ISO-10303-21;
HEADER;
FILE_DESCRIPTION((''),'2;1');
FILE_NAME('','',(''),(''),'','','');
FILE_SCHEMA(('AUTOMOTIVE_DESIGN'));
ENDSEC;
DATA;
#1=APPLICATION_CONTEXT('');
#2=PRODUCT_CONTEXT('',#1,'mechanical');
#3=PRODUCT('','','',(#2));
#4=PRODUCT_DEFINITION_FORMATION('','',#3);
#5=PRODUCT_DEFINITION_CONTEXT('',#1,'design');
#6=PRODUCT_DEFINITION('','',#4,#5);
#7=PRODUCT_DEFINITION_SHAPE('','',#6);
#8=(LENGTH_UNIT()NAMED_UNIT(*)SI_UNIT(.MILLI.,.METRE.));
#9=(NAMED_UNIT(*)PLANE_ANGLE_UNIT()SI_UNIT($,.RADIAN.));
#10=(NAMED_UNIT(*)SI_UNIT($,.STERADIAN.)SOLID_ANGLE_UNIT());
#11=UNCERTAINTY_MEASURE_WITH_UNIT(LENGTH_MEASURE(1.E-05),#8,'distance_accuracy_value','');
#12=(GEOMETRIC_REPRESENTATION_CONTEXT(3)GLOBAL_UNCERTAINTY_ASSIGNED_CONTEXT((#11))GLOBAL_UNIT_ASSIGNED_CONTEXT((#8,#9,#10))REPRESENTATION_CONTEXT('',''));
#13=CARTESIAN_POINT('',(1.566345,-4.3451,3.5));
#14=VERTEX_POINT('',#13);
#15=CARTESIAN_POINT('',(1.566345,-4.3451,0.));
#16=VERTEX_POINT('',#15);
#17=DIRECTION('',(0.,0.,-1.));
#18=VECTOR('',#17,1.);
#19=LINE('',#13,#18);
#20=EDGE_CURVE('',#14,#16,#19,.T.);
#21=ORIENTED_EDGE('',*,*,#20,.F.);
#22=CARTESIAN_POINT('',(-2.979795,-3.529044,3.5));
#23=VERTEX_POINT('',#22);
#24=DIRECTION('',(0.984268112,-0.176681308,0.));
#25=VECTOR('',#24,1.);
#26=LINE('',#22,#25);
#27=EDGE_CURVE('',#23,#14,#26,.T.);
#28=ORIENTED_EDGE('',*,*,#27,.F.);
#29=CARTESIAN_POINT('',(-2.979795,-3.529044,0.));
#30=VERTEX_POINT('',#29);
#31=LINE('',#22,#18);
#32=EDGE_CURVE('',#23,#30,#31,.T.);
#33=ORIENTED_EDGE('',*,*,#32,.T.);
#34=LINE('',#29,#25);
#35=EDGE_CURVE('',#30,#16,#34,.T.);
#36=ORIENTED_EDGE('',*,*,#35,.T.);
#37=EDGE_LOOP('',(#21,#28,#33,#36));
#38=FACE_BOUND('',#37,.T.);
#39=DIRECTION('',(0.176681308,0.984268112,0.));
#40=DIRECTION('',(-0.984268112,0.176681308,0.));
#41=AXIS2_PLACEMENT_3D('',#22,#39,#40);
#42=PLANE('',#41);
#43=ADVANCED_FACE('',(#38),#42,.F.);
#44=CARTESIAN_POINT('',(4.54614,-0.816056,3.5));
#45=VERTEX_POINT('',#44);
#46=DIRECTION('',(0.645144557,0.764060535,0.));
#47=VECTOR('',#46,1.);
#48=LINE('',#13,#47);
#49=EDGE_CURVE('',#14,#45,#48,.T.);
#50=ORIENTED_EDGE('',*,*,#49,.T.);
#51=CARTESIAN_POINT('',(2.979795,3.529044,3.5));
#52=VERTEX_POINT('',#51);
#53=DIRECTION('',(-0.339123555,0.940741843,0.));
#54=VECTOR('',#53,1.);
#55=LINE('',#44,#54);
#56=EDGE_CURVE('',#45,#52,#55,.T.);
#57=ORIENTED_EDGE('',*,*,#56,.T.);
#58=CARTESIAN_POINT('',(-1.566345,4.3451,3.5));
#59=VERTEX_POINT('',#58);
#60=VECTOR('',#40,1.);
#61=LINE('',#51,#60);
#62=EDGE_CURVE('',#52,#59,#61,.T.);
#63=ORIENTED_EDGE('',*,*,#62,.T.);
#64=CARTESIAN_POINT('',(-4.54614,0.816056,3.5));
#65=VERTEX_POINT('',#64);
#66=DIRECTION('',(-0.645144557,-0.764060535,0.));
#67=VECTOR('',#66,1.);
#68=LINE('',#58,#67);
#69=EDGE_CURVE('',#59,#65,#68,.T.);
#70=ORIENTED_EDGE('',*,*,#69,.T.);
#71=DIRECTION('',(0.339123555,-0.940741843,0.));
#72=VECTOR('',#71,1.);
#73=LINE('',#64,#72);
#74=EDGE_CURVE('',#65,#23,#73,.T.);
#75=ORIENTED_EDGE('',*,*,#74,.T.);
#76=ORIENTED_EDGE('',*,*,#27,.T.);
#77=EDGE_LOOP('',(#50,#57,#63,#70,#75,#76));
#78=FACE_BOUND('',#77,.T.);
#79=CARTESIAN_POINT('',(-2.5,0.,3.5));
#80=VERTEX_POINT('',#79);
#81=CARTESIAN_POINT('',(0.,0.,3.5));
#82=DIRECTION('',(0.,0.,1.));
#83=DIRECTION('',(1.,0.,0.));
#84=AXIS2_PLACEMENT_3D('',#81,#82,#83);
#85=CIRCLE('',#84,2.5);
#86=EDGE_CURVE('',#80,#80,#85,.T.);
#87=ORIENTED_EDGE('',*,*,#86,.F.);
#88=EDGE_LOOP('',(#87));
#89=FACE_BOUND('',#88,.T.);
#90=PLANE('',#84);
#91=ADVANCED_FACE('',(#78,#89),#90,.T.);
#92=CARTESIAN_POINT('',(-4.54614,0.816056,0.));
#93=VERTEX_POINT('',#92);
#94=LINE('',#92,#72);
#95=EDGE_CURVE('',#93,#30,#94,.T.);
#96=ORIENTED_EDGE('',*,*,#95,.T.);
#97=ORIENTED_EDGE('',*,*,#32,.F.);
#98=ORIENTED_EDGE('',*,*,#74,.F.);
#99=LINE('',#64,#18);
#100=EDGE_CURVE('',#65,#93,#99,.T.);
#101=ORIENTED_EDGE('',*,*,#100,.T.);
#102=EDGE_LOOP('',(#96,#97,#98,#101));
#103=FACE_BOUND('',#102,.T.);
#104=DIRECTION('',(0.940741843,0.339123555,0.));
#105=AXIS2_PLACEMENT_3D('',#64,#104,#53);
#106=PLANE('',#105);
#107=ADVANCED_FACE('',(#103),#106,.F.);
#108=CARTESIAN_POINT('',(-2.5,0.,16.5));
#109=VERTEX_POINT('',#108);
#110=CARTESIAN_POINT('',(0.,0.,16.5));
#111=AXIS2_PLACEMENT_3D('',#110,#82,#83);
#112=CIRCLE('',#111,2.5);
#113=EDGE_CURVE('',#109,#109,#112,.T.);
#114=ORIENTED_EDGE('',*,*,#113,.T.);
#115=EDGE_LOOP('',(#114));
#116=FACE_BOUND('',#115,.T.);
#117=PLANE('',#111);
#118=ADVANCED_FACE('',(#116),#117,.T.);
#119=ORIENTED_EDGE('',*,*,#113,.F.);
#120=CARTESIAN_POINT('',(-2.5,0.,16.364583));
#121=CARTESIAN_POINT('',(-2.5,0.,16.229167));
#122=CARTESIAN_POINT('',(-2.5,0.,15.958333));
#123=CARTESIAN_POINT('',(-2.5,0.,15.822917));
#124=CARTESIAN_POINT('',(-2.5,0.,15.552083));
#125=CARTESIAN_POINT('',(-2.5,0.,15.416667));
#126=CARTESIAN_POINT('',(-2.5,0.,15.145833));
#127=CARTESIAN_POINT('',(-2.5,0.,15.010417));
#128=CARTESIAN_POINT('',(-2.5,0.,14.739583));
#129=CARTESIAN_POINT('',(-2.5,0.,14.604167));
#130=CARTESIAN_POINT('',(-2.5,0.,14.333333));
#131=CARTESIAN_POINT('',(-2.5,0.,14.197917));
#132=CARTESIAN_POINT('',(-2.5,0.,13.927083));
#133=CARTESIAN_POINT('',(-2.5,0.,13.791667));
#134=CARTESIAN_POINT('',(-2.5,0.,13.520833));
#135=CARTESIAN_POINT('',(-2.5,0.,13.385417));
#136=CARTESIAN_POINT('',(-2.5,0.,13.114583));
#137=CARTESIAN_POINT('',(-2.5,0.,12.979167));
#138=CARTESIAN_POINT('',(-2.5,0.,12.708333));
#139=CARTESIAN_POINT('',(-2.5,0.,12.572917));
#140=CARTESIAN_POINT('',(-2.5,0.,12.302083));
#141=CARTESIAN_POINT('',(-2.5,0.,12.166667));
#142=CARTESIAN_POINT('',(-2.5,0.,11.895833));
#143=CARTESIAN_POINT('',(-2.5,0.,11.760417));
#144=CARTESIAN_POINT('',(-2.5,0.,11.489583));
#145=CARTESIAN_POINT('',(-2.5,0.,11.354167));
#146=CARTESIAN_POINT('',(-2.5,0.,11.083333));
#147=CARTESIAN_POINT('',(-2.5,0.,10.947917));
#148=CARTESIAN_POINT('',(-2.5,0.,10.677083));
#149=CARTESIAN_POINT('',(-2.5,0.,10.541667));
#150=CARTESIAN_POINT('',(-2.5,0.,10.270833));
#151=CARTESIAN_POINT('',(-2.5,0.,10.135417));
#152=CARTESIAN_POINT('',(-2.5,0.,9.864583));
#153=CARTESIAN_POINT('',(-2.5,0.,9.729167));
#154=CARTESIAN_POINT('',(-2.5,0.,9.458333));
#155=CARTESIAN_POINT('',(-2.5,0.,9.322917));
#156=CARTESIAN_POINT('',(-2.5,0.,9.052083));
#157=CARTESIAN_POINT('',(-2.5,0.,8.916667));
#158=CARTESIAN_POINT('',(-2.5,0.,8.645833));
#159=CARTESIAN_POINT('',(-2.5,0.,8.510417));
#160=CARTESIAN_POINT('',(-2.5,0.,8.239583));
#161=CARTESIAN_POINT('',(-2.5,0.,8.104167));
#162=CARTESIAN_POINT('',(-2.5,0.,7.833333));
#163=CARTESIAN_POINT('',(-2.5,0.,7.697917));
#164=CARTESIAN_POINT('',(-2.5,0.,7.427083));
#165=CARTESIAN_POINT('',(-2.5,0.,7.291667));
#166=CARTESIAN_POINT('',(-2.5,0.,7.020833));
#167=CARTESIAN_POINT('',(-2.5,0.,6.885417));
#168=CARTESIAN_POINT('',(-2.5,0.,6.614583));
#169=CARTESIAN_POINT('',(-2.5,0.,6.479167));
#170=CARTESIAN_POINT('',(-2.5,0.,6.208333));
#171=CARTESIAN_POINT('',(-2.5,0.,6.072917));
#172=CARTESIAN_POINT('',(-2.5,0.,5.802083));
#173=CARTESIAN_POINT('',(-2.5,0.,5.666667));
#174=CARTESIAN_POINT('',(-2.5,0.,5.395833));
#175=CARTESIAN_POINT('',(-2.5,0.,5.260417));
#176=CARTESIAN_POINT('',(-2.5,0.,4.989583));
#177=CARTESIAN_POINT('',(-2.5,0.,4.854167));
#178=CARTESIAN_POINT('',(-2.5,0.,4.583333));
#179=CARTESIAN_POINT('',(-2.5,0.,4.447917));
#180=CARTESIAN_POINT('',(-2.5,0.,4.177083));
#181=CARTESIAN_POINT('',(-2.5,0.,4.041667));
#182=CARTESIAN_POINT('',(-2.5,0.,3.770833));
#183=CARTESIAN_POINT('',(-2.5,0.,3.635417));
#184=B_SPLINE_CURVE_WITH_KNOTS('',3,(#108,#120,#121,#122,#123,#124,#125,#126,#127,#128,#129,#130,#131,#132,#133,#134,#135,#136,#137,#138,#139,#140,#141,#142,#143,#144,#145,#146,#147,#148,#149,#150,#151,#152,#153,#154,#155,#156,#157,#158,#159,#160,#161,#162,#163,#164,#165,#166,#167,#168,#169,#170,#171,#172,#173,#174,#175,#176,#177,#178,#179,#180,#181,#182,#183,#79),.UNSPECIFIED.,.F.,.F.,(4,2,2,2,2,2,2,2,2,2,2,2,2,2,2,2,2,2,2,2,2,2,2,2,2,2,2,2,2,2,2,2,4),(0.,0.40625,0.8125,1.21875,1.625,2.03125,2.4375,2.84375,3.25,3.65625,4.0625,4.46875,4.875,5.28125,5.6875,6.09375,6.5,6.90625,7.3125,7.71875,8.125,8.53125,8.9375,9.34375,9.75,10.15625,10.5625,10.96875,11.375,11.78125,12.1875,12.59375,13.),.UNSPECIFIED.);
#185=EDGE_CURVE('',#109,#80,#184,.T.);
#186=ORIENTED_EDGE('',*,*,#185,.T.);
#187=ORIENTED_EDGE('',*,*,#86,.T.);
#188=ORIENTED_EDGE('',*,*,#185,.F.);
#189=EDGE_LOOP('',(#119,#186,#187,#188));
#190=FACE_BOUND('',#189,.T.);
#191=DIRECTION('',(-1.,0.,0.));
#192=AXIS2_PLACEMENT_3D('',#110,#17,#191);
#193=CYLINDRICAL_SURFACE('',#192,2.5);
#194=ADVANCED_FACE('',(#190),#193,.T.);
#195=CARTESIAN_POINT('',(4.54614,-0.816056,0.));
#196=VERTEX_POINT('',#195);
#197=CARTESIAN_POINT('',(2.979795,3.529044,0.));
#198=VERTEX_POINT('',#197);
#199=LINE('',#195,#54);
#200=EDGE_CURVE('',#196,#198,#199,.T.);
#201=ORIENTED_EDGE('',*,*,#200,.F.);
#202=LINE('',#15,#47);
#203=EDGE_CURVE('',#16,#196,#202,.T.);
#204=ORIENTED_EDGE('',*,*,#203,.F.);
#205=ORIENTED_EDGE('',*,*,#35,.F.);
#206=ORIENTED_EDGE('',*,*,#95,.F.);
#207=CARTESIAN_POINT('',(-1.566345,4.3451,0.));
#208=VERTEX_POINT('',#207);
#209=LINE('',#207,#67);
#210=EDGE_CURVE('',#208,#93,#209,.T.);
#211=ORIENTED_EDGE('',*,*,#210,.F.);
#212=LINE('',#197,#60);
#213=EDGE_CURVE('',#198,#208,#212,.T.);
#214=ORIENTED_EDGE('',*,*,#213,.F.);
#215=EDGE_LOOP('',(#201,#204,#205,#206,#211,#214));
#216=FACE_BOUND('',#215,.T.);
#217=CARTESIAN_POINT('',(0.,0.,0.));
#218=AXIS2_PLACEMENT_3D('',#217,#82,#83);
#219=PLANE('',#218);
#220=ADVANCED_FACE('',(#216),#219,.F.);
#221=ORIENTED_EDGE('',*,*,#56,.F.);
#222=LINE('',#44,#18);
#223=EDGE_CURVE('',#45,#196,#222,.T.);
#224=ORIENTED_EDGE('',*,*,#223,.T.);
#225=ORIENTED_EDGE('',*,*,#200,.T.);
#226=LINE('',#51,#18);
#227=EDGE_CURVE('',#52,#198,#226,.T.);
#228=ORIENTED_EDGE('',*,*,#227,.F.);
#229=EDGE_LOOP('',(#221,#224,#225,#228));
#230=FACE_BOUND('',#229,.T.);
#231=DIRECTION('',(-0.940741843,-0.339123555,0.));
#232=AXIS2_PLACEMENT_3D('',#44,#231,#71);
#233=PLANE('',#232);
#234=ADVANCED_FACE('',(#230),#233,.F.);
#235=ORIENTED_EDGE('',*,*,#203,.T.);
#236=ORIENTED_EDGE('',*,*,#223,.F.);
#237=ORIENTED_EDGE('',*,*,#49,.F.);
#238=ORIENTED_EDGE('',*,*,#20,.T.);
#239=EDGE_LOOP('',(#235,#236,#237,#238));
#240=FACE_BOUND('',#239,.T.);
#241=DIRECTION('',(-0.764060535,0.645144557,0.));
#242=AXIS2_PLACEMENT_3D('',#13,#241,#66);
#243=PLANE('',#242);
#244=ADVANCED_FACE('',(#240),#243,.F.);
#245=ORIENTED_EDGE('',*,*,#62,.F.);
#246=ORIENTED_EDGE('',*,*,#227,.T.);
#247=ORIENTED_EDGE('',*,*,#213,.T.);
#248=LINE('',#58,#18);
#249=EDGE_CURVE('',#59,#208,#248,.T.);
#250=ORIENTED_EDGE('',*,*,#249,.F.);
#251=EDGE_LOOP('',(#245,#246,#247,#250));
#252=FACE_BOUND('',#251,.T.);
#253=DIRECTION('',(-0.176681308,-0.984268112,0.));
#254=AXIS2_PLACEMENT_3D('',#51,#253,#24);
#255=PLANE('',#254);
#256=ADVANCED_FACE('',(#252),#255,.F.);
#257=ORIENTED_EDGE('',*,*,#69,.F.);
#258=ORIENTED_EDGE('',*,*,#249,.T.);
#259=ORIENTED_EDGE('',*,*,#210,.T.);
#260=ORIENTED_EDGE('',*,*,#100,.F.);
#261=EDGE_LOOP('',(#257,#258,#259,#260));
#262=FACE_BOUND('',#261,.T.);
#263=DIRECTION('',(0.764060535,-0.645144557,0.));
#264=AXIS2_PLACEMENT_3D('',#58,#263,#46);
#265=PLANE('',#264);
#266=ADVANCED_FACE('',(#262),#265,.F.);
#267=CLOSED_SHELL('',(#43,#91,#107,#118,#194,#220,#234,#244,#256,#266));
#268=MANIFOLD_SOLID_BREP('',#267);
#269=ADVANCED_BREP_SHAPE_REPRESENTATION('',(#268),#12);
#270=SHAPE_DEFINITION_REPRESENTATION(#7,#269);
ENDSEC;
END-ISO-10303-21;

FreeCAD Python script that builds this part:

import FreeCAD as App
import Part
import Sketcher

V = App.Vector
Q = App.Units.Quantity


def add_polygon(sketch, points):
    """Adds a closed chain of lines whose ends are joined by coincident constraints."""
    first, n = sketch.GeometryCount, len(points)
    for a, b in zip(points, points[1:] + points[:1]):
        sketch.addGeometry(Part.LineSegment(App.Vector(*a, 0), App.Vector(*b, 0)), False)
    for i in range(n):
        sketch.addConstraint(Sketcher.Constraint("Coincident", first + i, 2, first + (i + 1) % n, 1))

doc = App.newDocument("Part")
params = doc.addObject("Spreadsheet::Sheet", "Params")
for row, (alias, value) in enumerate([
    ("pad1_length", "3.5 mm"),
    ("sketch2_diameter", "5 mm"),
    ("pad2_length", "13 mm"),
], start=1):
    params.set(f"A{row}", alias)
    params.set(f"B{row}", "=" + value)
    params.setAlias(f"B{row}", alias)

body = doc.addObject("PartDesign::Body", "Body")

# Sketch on XY plane
sketch1 = body.newObject("Sketcher::SketchObject", "Sketch")
sketch1.AttachmentSupport = (doc.getObject("XY_Plane"), [""])
sketch1.MapMode = "FlatFace"
add_polygon(sketch1, [(-3, -3.5), (1.6, -4.3), (4.5, -0.8), (3, 3.5), (-1.6, 4.3), (-4.5, 0.8)])  # lines 0-5
sketch1.addConstraint(Sketcher.Constraint("Symmetric", 0, 2, 3, 2, -1, 1))
sketch1.addConstraint(Sketcher.Constraint("Symmetric", 1, 2, 4, 2, -1, 1))
sketch1.addConstraint(Sketcher.Constraint("Symmetric", 2, 2, 5, 2, -1, 1))
sketch1.addConstraint(Sketcher.Constraint("Equal", 0, 1))
sketch1.addConstraint(Sketcher.Constraint("Equal", 1, 2))
sketch1.addConstraint(Sketcher.Constraint("DistanceY", 0, 2, -1, 1, Q("4.3451 mm")))
sketch1.addConstraint(Sketcher.Constraint("DistanceY", 1, 2, 2, 2, Q("4.3451 mm")))
sketch1.addConstraint(Sketcher.Constraint("DistanceX", -1, 1, 1, 2, Q("4.54614 mm")))
sketch1.addConstraint(Sketcher.Constraint("DistanceX", 0, 2, 2, 2, Q("1.41345 mm")))
pad1 = body.newObject("PartDesign::Pad", "Pad")
pad1.Profile = sketch1
pad1.setExpression("Length", "Params.pad1_length")

# Sketch on XY plane
sketch2 = body.newObject("Sketcher::SketchObject", "Sketch001")
sketch2.AttachmentSupport = (doc.getObject("XY_Plane"), [""])
sketch2.MapMode = "FlatFace"
sketch2.AttachmentOffset = App.Placement(V(0, 0, 3.5), App.Rotation())
sketch2.addGeometry(Part.Circle(V(0, 0, 0), V(0, 0, 1), 2.5), False)
sketch2.addConstraint(Sketcher.Constraint("Coincident", 0, 3, -1, 1))
sketch2.addConstraint(Sketcher.Constraint("Diameter", 0, Q("5 mm")))
sketch2.setExpression("Constraints[1]", "Params.sketch2_diameter")
pad2 = body.newObject("PartDesign::Pad", "Pad001")
pad2.Profile = sketch2
pad2.setExpression("Length", "Params.pad2_length")

doc.recompute()
